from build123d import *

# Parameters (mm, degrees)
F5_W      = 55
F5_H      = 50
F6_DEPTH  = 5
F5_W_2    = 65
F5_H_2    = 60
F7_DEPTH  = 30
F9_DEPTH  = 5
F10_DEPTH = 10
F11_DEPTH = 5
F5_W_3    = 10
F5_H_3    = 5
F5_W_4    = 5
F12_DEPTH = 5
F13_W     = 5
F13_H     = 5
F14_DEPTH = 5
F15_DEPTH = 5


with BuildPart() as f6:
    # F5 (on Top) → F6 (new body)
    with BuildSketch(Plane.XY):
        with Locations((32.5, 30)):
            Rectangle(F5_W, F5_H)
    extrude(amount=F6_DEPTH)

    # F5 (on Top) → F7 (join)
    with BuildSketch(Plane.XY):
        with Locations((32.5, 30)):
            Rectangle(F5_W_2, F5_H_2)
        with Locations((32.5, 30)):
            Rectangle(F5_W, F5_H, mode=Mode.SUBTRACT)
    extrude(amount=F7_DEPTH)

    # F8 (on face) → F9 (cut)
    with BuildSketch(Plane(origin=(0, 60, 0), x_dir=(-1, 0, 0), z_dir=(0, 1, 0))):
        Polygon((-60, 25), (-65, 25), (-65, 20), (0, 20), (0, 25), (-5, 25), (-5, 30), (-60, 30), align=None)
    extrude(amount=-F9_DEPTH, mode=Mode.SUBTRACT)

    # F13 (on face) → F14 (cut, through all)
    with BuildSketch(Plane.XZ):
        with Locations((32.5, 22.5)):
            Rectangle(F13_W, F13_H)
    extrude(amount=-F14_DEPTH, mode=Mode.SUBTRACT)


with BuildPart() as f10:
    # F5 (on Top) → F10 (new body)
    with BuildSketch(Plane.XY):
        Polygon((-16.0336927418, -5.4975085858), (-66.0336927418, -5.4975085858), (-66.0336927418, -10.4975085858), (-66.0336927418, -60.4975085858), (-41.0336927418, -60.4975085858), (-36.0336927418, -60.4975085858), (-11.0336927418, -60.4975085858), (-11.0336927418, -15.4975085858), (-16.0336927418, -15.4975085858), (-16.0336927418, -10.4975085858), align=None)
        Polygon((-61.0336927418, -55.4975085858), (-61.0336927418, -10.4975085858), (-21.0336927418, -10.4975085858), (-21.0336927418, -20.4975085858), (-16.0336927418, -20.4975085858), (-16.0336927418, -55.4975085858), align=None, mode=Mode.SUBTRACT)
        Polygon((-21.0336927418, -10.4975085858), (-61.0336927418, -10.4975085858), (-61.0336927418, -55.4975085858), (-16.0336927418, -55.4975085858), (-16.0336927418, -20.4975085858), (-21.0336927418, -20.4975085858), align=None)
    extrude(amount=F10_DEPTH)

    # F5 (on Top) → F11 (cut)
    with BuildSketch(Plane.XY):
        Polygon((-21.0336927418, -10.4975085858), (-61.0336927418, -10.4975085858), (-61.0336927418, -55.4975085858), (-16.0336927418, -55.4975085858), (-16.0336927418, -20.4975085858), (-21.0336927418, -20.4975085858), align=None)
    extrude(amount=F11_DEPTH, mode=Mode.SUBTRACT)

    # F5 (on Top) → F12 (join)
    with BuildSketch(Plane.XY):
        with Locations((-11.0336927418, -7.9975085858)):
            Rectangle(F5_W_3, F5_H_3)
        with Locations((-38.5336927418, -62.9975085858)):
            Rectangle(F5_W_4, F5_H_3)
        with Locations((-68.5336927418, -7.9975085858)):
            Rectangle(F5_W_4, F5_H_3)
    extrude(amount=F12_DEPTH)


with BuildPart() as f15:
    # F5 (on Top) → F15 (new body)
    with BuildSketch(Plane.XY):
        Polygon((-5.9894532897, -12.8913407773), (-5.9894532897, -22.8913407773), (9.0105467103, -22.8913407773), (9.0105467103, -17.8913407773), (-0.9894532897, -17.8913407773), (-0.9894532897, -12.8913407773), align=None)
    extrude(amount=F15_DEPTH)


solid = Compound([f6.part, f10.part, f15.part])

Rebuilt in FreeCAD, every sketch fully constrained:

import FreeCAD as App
import Part
import Sketcher
from FreeCAD import Vector


def add_polygon(sketch, points):
    """Adds a closed chain of lines whose ends are joined by coincident constraints."""
    first, n = sketch.GeometryCount, len(points)
    for a, b in zip(points, points[1:] + points[:1]):
        sketch.addGeometry(Part.LineSegment(App.Vector(*a, 0), App.Vector(*b, 0)), False)
    for i in range(n):
        sketch.addConstraint(Sketcher.Constraint("Coincident", first + i, 2, first + (i + 1) % n, 1))

doc = App.newDocument("Part")
body = doc.addObject("PartDesign::Body", "Body")

# Sketch on XY plane
sketch1 = body.newObject("Sketcher::SketchObject", "Sketch")
sketch1.AttachmentSupport = (doc.getObject("XY_Plane"), [""])
sketch1.MapMode = "FlatFace"
add_polygon(sketch1, [(5, 55), (5, 5), (60, 5), (60, 55)])  # lines 0-3
sketch1.addConstraint(Sketcher.Constraint("Vertical", 0))
sketch1.addConstraint(Sketcher.Constraint("Horizontal", 1))
sketch1.addConstraint(Sketcher.Constraint("Vertical", 2))
sketch1.addConstraint(Sketcher.Constraint("Horizontal", 3))
sketch1.addConstraint(Sketcher.Constraint("DistanceX", 1, 1, 1, 2, 55.0))
sketch1.addConstraint(Sketcher.Constraint("DistanceY", 0, 2, 0, 1, 50.0))
sketch1.addConstraint(Sketcher.Constraint("DistanceX", -1, 1, 0, 2, 5.0))
sketch1.addConstraint(Sketcher.Constraint("DistanceY", -1, 1, 0, 2, 5.0))
pad1 = body.newObject("PartDesign::Pad", "Pad")
pad1.Profile = sketch1
pad1.Length = 5

# Sketch on XY plane
sketch2 = body.newObject("Sketcher::SketchObject", "Sketch001")
sketch2.AttachmentSupport = (doc.getObject("XY_Plane"), [""])
sketch2.MapMode = "FlatFace"
add_polygon(sketch2, [(0, 60), (0, 0), (65, 0), (65, 60)])  # lines 0-3
add_polygon(sketch2, [(60, 5), (5, 5), (5, 55), (60, 55)])  # lines 4-7
sketch2.addConstraint(Sketcher.Constraint("Vertical", 0))
sketch2.addConstraint(Sketcher.Constraint("Horizontal", 1))
sketch2.addConstraint(Sketcher.Constraint("Vertical", 2))
sketch2.addConstraint(Sketcher.Constraint("Horizontal", 3))
sketch2.addConstraint(Sketcher.Constraint("Horizontal", 4))
sketch2.addConstraint(Sketcher.Constraint("Vertical", 5))
sketch2.addConstraint(Sketcher.Constraint("Horizontal", 6))
sketch2.addConstraint(Sketcher.Constraint("Vertical", 7))
sketch2.addConstraint(Sketcher.Constraint("Coincident", 0, 2, -1, 1))
sketch2.addConstraint(Sketcher.Constraint("DistanceX", 1, 1, 1, 2, 65.0))
sketch2.addConstraint(Sketcher.Constraint("DistanceX", 4, 2, 4, 1, 55.0))
sketch2.addConstraint(Sketcher.Constraint("DistanceY", 0, 2, 0, 1, 60.0))
sketch2.addConstraint(Sketcher.Constraint("DistanceY", 5, 1, 5, 2, 50.0))
sketch2.addConstraint(Sketcher.Constraint("DistanceX", -1, 1, 4, 2, 5.0))
sketch2.addConstraint(Sketcher.Constraint("DistanceY", -1, 1, 4, 2, 5.0))
pad2 = body.newObject("PartDesign::Pad", "Pad001")
pad2.Profile = sketch2
pad2.Length = 30

# Sketch on XZ plane
sketch3 = body.newObject("Sketcher::SketchObject", "Sketch002")
sketch3.AttachmentSupport = (doc.getObject("XZ_Plane"), [""])
sketch3.MapMode = "FlatFace"
sketch3.AttachmentOffset = App.Placement(Vector(0, 0, -60), App.Rotation())
add_polygon(sketch3, [(60, 25), (65, 25), (65, 20), (0, 20), (0, 25), (5, 25), (5, 30), (60, 30)])  # lines 0-7
sketch3.addConstraint(Sketcher.Constraint("Horizontal", 0))
sketch3.addConstraint(Sketcher.Constraint("Vertical", 1))
sketch3.addConstraint(Sketcher.Constraint("Horizontal", 2))
sketch3.addConstraint(Sketcher.Constraint("Vertical", 3))
sketch3.addConstraint(Sketcher.Constraint("Horizontal", 4))
sketch3.addConstraint(Sketcher.Constraint("Vertical", 5))
sketch3.addConstraint(Sketcher.Constraint("Horizontal", 6))
sketch3.addConstraint(Sketcher.Constraint("Vertical", 7))
sketch3.addConstraint(Sketcher.Constraint("PointOnObject", 2, 2, -2))
sketch3.addConstraint(Sketcher.Constraint("Horizontal", 0, 2, 3, 2))
sketch3.addConstraint(Sketcher.Constraint("Equal", 0, 4))
sketch3.addConstraint(Sketcher.Constraint("Equal", 4, 1))
sketch3.addConstraint(Sketcher.Constraint("Equal", 3, 5))
sketch3.addConstraint(Sketcher.Constraint("DistanceX", 0, 1, 0, 2, 5.0))
sketch3.addConstraint(Sketcher.Constraint("DistanceX", 2, 2, 2, 1, 65.0))
sketch3.addConstraint(Sketcher.Constraint("DistanceY", -1, 1, 0, 2, 25.0))
pocket1 = body.newObject("PartDesign::Pocket", "Pocket")
pocket1.Profile = sketch3
pocket1.Length = 5
pocket1.Reversed = True

# Sketch on XZ plane
sketch4 = body.newObject("Sketcher::SketchObject", "Sketch003")
sketch4.AttachmentSupport = (doc.getObject("XZ_Plane"), [""])
sketch4.MapMode = "FlatFace"
add_polygon(sketch4, [(30, 25), (30, 20), (35, 20), (35, 25)])  # lines 0-3
sketch4.addConstraint(Sketcher.Constraint("Vertical", 0))
sketch4.addConstraint(Sketcher.Constraint("Horizontal", 1))
sketch4.addConstraint(Sketcher.Constraint("Vertical", 2))
sketch4.addConstraint(Sketcher.Constraint("Horizontal", 3))
sketch4.addConstraint(Sketcher.Constraint("Equal", 3, 0))
sketch4.addConstraint(Sketcher.Constraint("DistanceX", 1, 1, 1, 2, 5.0))
sketch4.addConstraint(Sketcher.Constraint("DistanceX", -1, 1, 0, 2, 30.0))
sketch4.addConstraint(Sketcher.Constraint("DistanceY", -1, 1, 0, 2, 20.0))
pocket2 = body.newObject("PartDesign::Pocket", "Pocket001")
pocket2.Profile = sketch4
pocket2.Type = "ThroughAll"
body2 = doc.addObject("PartDesign::Body", "Body001")

# Sketch on XY plane
sketch5 = body2.newObject("Sketcher::SketchObject", "Sketch004")
sketch5.AttachmentSupport = (doc.getObject("XY_Plane001"), [""])
sketch5.MapMode = "FlatFace"
add_polygon(sketch5, [(-16.033693, -5.497509), (-66.033693, -5.497509), (-66.033693, -60.497509), (-11.033693, -60.497509), (-11.033693, -15.497509), (-16.033693, -15.497509)])  # lines 0-5
sketch5.addConstraint(Sketcher.Constraint("Horizontal", 0))
sketch5.addConstraint(Sketcher.Constraint("Vertical", 1))
sketch5.addConstraint(Sketcher.Constraint("Horizontal", 2))
sketch5.addConstraint(Sketcher.Constraint("Vertical", 3))
sketch5.addConstraint(Sketcher.Constraint("Horizontal", 4))
sketch5.addConstraint(Sketcher.Constraint("Vertical", 5))
sketch5.addConstraint(Sketcher.Constraint("Equal", 2, 1))
sketch5.addConstraint(Sketcher.Constraint("DistanceX", 0, 2, 0, 1, 50.0))
sketch5.addConstraint(Sketcher.Constraint("DistanceX", 2, 1, 2, 2, 55.0))
sketch5.addConstraint(Sketcher.Constraint("DistanceY", 3, 1, 3, 2, 45.0))
sketch5.addConstraint(Sketcher.Constraint("DistanceY", 0, 2, -1, 1, 5.497509))
sketch5.addConstraint(Sketcher.Constraint("DistanceX", 0, 2, -1, 1, 66.033693))
pad3 = body2.newObject("PartDesign::Pad", "Pad002")
pad3.Profile = sketch5
pad3.Length = 10

# Sketch on XY plane
sketch6 = body2.newObject("Sketcher::SketchObject", "Sketch005")
sketch6.AttachmentSupport = (doc.getObject("XY_Plane001"), [""])
sketch6.MapMode = "FlatFace"
add_polygon(sketch6, [(-21.033693, -10.497509), (-61.033693, -10.497509), (-61.033693, -55.497509), (-16.033693, -55.497509), (-16.033693, -20.497509), (-21.033693, -20.497509)])  # lines 0-5
sketch6.addConstraint(Sketcher.Constraint("Horizontal", 0))
sketch6.addConstraint(Sketcher.Constraint("Vertical", 1))
sketch6.addConstraint(Sketcher.Constraint("Horizontal", 2))
sketch6.addConstraint(Sketcher.Constraint("Vertical", 3))
sketch6.addConstraint(Sketcher.Constraint("Horizontal", 4))
sketch6.addConstraint(Sketcher.Constraint("Vertical", 5))
sketch6.addConstraint(Sketcher.Constraint("Equal", 2, 1))
sketch6.addConstraint(Sketcher.Constraint("DistanceX", 0, 2, 0, 1, 40.0))
sketch6.addConstraint(Sketcher.Constraint("DistanceX", 2, 1, 2, 2, 45.0))
sketch6.addConstraint(Sketcher.Constraint("DistanceY", 3, 1, 3, 2, 35.0))
sketch6.addConstraint(Sketcher.Constraint("DistanceY", 0, 2, -1, 1, 10.497509))
sketch6.addConstraint(Sketcher.Constraint("DistanceX", 0, 2, -1, 1, 61.033693))
pocket3 = body2.newObject("PartDesign::Pocket", "Pocket002")
pocket3.Profile = sketch6
pocket3.Length = 5
pocket3.Reversed = True

# Sketch on XY plane
sketch7 = body2.newObject("Sketcher::SketchObject", "Sketch006")
sketch7.AttachmentSupport = (doc.getObject("XY_Plane001"), [""])
sketch7.MapMode = "FlatFace"
add_polygon(sketch7, [(-16.033693, -5.497509), (-16.033693, -10.497509), (-6.033693, -10.497509), (-6.033693, -5.497509)])  # lines 0-3
add_polygon(sketch7, [(-41.033693, -60.497509), (-41.033693, -65.497509), (-36.033693, -65.497509), (-36.033693, -60.497509)])  # lines 4-7
add_polygon(sketch7, [(-71.033693, -5.497509), (-71.033693, -10.497509), (-66.033693, -10.497509), (-66.033693, -5.497509)])  # lines 8-11
sketch7.addConstraint(Sketcher.Constraint("Vertical", 0))
sketch7.addConstraint(Sketcher.Constraint("Horizontal", 1))
sketch7.addConstraint(Sketcher.Constraint("Vertical", 2))
sketch7.addConstraint(Sketcher.Constraint("Horizontal", 3))
sketch7.addConstraint(Sketcher.Constraint("Vertical", 4))
sketch7.addConstraint(Sketcher.Constraint("Horizontal", 5))
sketch7.addConstraint(Sketcher.Constraint("Vertical", 6))
sketch7.addConstraint(Sketcher.Constraint("Horizontal", 7))
sketch7.addConstraint(Sketcher.Constraint("Vertical", 8))
sketch7.addConstraint(Sketcher.Constraint("Horizontal", 9))
sketch7.addConstraint(Sketcher.Constraint("Vertical", 10))
sketch7.addConstraint(Sketcher.Constraint("Horizontal", 11))
sketch7.addConstraint(Sketcher.Constraint("Horizontal", 1, 2, 8, 2))
sketch7.addConstraint(Sketcher.Constraint("Horizontal", 3, 2, 10, 2))
sketch7.addConstraint(Sketcher.Constraint("Equal", 7, 9))
sketch7.addConstraint(Sketcher.Constraint("Equal", 11, 0))
sketch7.addConstraint(Sketcher.Constraint("Equal", 2, 4))
sketch7.addConstraint(Sketcher.Constraint("DistanceX", 1, 1, 1, 2, 10.0))
sketch7.addConstraint(Sketcher.Constraint("DistanceX", 5, 1, 5, 2, 5.0))
sketch7.addConstraint(Sketcher.Constraint("DistanceX", 4, 2, 0, 2, 25.0))
sketch7.addConstraint(Sketcher.Constraint("DistanceY", 4, 2, 0, 2, 55.0))
sketch7.addConstraint(Sketcher.Constraint("DistanceX", 8, 2, 0, 2, 55.0))
sketch7.addConstraint(Sketcher.Constraint("DistanceY", 0, 2, -1, 1, 10.497509))
sketch7.addConstraint(Sketcher.Constraint("DistanceX", 0, 2, -1, 1, 16.033693))
pad4 = body2.newObject("PartDesign::Pad", "Pad003")
pad4.Profile = sketch7
pad4.Length = 5
body3 = doc.addObject("PartDesign::Body", "Body002")

# Sketch on XY plane
sketch8 = body3.newObject("Sketcher::SketchObject", "Sketch007")
sketch8.AttachmentSupport = (doc.getObject("XY_Plane002"), [""])
sketch8.MapMode = "FlatFace"
add_polygon(sketch8, [(-5.989453, -12.891341), (-5.989453, -22.891341), (9.010547, -22.891341), (9.010547, -17.891341), (-0.989453, -17.891341), (-0.989453, -12.891341)])  # lines 0-5
sketch8.addConstraint(Sketcher.Constraint("Vertical", 0))
sketch8.addConstraint(Sketcher.Constraint("Horizontal", 1))
sketch8.addConstraint(Sketcher.Constraint("Vertical", 2))
sketch8.addConstraint(Sketcher.Constraint("Horizontal", 3))
sketch8.addConstraint(Sketcher.Constraint("Vertical", 4))
sketch8.addConstraint(Sketcher.Constraint("Horizontal", 5))
sketch8.addConstraint(Sketcher.Constraint("Equal", 3, 0))
sketch8.addConstraint(Sketcher.Constraint("Equal", 5, 2))
sketch8.addConstraint(Sketcher.Constraint("Equal", 2, 4))
sketch8.addConstraint(Sketcher.Constraint("DistanceX", 1, 1, 1, 2, 15.0))
sketch8.addConstraint(Sketcher.Constraint("DistanceY", 0, 2, -1, 1, 22.891341))
sketch8.addConstraint(Sketcher.Constraint("DistanceX", 0, 2, -1, 1, 5.989453))
pad5 = body3.newObject("PartDesign::Pad", "Pad004")
pad5.Profile = sketch8
pad5.Length = 5

doc.recompute()
